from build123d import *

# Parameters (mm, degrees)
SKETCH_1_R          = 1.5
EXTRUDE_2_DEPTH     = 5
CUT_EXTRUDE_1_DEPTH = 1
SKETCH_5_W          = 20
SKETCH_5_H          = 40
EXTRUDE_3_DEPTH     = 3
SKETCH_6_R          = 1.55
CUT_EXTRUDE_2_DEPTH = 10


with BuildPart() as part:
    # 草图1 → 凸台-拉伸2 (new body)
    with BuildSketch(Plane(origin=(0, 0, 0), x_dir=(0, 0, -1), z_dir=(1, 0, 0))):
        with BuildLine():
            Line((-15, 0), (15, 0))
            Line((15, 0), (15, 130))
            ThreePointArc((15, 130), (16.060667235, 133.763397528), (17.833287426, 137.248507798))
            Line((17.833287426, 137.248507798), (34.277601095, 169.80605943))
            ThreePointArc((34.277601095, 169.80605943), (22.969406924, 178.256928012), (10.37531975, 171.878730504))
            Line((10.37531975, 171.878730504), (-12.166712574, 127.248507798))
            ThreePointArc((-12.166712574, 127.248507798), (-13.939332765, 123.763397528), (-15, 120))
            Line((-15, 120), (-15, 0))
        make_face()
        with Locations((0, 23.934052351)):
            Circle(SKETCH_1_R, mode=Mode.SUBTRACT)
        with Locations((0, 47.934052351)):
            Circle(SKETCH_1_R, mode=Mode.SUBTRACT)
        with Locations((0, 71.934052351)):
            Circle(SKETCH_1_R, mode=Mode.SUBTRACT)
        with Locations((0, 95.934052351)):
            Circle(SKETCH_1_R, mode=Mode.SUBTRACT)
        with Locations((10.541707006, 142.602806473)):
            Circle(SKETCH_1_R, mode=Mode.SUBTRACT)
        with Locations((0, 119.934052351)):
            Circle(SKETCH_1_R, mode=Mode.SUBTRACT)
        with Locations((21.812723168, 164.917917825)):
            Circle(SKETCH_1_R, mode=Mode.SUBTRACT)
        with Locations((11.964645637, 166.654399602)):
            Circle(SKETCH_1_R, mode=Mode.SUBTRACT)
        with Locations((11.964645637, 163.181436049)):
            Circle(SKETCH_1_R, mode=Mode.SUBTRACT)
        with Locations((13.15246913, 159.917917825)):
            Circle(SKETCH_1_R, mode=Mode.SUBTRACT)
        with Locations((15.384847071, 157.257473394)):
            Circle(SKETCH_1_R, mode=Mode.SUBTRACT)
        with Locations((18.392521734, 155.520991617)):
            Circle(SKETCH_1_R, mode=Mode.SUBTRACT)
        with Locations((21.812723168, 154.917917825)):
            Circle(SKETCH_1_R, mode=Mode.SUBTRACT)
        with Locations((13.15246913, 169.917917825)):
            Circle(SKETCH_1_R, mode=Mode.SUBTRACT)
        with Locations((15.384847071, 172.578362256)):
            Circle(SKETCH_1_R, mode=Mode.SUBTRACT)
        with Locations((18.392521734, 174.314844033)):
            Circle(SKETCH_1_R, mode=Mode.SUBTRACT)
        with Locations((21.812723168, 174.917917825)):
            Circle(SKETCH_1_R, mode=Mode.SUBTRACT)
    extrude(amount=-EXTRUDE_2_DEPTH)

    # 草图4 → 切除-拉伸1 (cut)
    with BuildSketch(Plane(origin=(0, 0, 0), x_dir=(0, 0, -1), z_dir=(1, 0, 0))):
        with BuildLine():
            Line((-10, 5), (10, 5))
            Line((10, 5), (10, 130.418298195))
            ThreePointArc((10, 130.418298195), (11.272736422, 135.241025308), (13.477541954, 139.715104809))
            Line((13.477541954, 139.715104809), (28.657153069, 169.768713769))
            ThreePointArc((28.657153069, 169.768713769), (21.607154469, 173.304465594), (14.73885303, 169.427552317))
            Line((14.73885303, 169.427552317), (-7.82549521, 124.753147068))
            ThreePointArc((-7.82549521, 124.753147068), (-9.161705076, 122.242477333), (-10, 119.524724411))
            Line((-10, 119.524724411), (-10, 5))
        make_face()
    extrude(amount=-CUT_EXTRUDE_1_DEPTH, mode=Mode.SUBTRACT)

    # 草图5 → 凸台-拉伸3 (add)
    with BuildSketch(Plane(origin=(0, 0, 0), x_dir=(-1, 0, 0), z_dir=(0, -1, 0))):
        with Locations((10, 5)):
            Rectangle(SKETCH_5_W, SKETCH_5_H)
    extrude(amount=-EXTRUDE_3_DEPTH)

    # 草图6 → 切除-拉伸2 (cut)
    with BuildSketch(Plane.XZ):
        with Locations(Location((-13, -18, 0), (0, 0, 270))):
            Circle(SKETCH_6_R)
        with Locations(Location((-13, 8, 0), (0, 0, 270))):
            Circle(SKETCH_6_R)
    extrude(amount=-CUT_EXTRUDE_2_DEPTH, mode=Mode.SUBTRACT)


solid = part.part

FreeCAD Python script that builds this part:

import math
import FreeCAD as App
import Part
import Sketcher
Q = App.Units.Quantity

doc = App.newDocument("Part")
body = doc.addObject("PartDesign::Body", "Body")

sketch1 = body.newObject("Sketcher::SketchObject", "Sketch")
sketch1.AttachmentSupport = (doc.getObject("YZ_Plane"), [""])
sketch1.MapMode = "FlatFace"
sketch1.addGeometry(Part.LineSegment(App.Vector(0, 15, 0), App.Vector(0, -15, 0)), False)
sketch1.addGeometry(Part.LineSegment(App.Vector(0, -15, 0), App.Vector(130, -15, 0)), False)
sketch1.addGeometry(Part.ArcOfCircle(Part.Circle(App.Vector(126.482287, -34.688212, 0), App.Vector(0, 0, 1), 20), math.radians(57.431261), math.radians(79.869798)), False)
sketch1.addGeometry(Part.LineSegment(App.Vector(137.248508, -17.833287, 0), App.Vector(169.806059, -34.277601, 0)), False)
sketch1.addGeometry(Part.ArcOfCircle(Part.Circle(App.Vector(164.917918, -21.812723, 0), App.Vector(0, 0, 1), 13.389067), math.radians(-68.587213), math.radians(58.675273)), False)
sketch1.addGeometry(Part.LineSegment(App.Vector(171.878731, -10.37532, 0), App.Vector(127.248508, 12.166713, 0)), False)
sketch1.addGeometry(Part.ArcOfCircle(Part.Circle(App.Vector(116.482287, -4.688212, 0), App.Vector(0, 0, 1), 20), math.radians(57.431261), math.radians(79.869798)), False)
sketch1.addGeometry(Part.LineSegment(App.Vector(120, 15, 0), App.Vector(0, 15, 0)), False)
sketch1.addGeometry(Part.Circle(App.Vector(23.934052, 0, 0), App.Vector(0, 0, 1), 1.5), False)
sketch1.addGeometry(Part.Circle(App.Vector(47.934052, 0, 0), App.Vector(0, 0, 1), 1.5), False)
sketch1.addGeometry(Part.Circle(App.Vector(71.934052, 0, 0), App.Vector(0, 0, 1), 1.5), False)
sketch1.addGeometry(Part.Circle(App.Vector(95.934052, 0, 0), App.Vector(0, 0, 1), 1.5), False)
sketch1.addGeometry(Part.Circle(App.Vector(119.934052, 0, 0), App.Vector(0, 0, 1), 1.5), False)
sketch1.addGeometry(Part.Circle(App.Vector(142.602806, -10.541707, 0), App.Vector(0, 0, 1), 1.5), False)
sketch1.addGeometry(Part.Circle(App.Vector(163.181436, -11.964646, 0), App.Vector(0, 0, 1), 1.5), False)
sketch1.addGeometry(Part.Circle(App.Vector(166.6544, -11.964646, 0), App.Vector(0, 0, 1), 1.5), False)
sketch1.addGeometry(Part.Circle(App.Vector(159.917918, -13.152469, 0), App.Vector(0, 0, 1), 1.5), False)
sketch1.addGeometry(Part.Circle(App.Vector(169.917918, -13.152469, 0), App.Vector(0, 0, 1), 1.5), False)
sketch1.addGeometry(Part.Circle(App.Vector(157.257473, -15.384847, 0), App.Vector(0, 0, 1), 1.5), False)
sketch1.addGeometry(Part.Circle(App.Vector(172.578362, -15.384847, 0), App.Vector(0, 0, 1), 1.5), False)
sketch1.addGeometry(Part.Circle(App.Vector(155.520992, -18.392522, 0), App.Vector(0, 0, 1), 1.5), False)
sketch1.addGeometry(Part.Circle(App.Vector(154.917918, -21.812723, 0), App.Vector(0, 0, 1), 1.5), False)
sketch1.addGeometry(Part.Circle(App.Vector(174.314844, -18.392522, 0), App.Vector(0, 0, 1), 1.5), False)
sketch1.addGeometry(Part.Circle(App.Vector(164.917918, -21.812723, 0), App.Vector(0, 0, 1), 1.5), False)
sketch1.addGeometry(Part.Circle(App.Vector(174.917918, -21.812723, 0), App.Vector(0, 0, 1), 1.5), False)
sketch1.addConstraint(Sketcher.Constraint("Coincident", 0, 2, 1, 1))
sketch1.addConstraint(Sketcher.Constraint("Coincident", 1, 2, 2, 2))
sketch1.addConstraint(Sketcher.Constraint("Coincident", 2, 1, 3, 1))
sketch1.addConstraint(Sketcher.Constraint("Coincident", 3, 2, 4, 1))
sketch1.addConstraint(Sketcher.Constraint("Coincident", 4, 2, 5, 1))
sketch1.addConstraint(Sketcher.Constraint("Coincident", 5, 2, 6, 1))
sketch1.addConstraint(Sketcher.Constraint("Coincident", 6, 2, 7, 1))
sketch1.addConstraint(Sketcher.Constraint("Coincident", 7, 2, 0, 1))
sketch1.addConstraint(Sketcher.Constraint("Vertical", 0))
sketch1.addConstraint(Sketcher.Constraint("Horizontal", 1))
sketch1.addConstraint(Sketcher.Constraint("Horizontal", 7))
sketch1.addConstraint(Sketcher.Constraint("Coincident", 23, 3, 4, 3))
sketch1.addConstraint(Sketcher.Constraint("Equal", 2, 6))
sketch1.addConstraint(Sketcher.Constraint("Equal", 8, 9))
sketch1.addConstraint(Sketcher.Constraint("Equal", 9, 10))
sketch1.addConstraint(Sketcher.Constraint("Equal", 10, 11))
sketch1.addConstraint(Sketcher.Constraint("Equal", 11, 12))
sketch1.addConstraint(Sketcher.Constraint("Equal", 12, 13))
sketch1.addConstraint(Sketcher.Constraint("Equal", 13, 14))
sketch1.addConstraint(Sketcher.Constraint("Equal", 14, 15))
sketch1.addConstraint(Sketcher.Constraint("Equal", 15, 16))
sketch1.addConstraint(Sketcher.Constraint("Equal", 16, 17))
sketch1.addConstraint(Sketcher.Constraint("Equal", 17, 18))
sketch1.addConstraint(Sketcher.Constraint("Equal", 18, 19))
sketch1.addConstraint(Sketcher.Constraint("Equal", 19, 20))
sketch1.addConstraint(Sketcher.Constraint("Equal", 20, 21))
sketch1.addConstraint(Sketcher.Constraint("Equal", 21, 22))
sketch1.addConstraint(Sketcher.Constraint("Equal", 22, 23))
sketch1.addConstraint(Sketcher.Constraint("Equal", 23, 24))
sketch1.addConstraint(Sketcher.Constraint("Symmetric", 0, 2, 7, 2, -1, 1))
sketch1.addConstraint(Sketcher.Constraint("PointOnObject", 8, 3, -1))
sketch1.addConstraint(Sketcher.Constraint("PointOnObject", 9, 3, -1))
sketch1.addConstraint(Sketcher.Constraint("PointOnObject", 10, 3, -1))
sketch1.addConstraint(Sketcher.Constraint("PointOnObject", 11, 3, -1))
sketch1.addConstraint(Sketcher.Constraint("PointOnObject", 12, 3, -1))
sketch1.addConstraint(Sketcher.Constraint("Parallel", 3, 5))
sketch1.addConstraint(Sketcher.Constraint("Horizontal", 14, 3, 15, 3))
sketch1.addConstraint(Sketcher.Constraint("Horizontal", 16, 3, 17, 3))
sketch1.addConstraint(Sketcher.Constraint("Horizontal", 18, 3, 19, 3))
sketch1.addConstraint(Sketcher.Constraint("Horizontal", 4, 3, 21, 3))
sketch1.addConstraint(Sketcher.Constraint("Horizontal", 20, 3, 22, 3))
sketch1.addConstraint(Sketcher.Constraint("Horizontal", 23, 3, 24, 3))
sketch1.addConstraint(Sketcher.Constraint("Diameter", 8, Q("3 mm")))
sketch1.addConstraint(Sketcher.Constraint("Radius", 2, Q("20 mm")))
sketch1.addConstraint(Sketcher.Constraint("DistanceX", 1, 1, 1, 2, Q("130 mm")))
sketch1.addConstraint(Sketcher.Constraint("DistanceX", 7, 2, 7, 1, Q("120 mm")))
sketch1.addConstraint(Sketcher.Constraint("DistanceY", 0, 2, 0, 1, Q("30 mm")))
sketch1.addConstraint(Sketcher.Constraint("Distance", 5, Q("50 mm")))
sketch1.addConstraint(Sketcher.Constraint("DistanceX", 6, 3, 2, 3, Q("10 mm")))
sketch1.addConstraint(Sketcher.Constraint("DistanceX", 8, 3, 9, 3, Q("24 mm")))
sketch1.addConstraint(Sketcher.Constraint("DistanceX", 9, 3, 10, 3, Q("24 mm")))
sketch1.addConstraint(Sketcher.Constraint("DistanceX", 10, 3, 11, 3, Q("24 mm")))
sketch1.addConstraint(Sketcher.Constraint("DistanceX", 11, 3, 12, 3, Q("24 mm")))
sketch1.addConstraint(Sketcher.Constraint("DistanceX", 16, 3, 4, 3, Q("5 mm")))
sketch1.addConstraint(Sketcher.Constraint("DistanceX", 16, 3, 17, 3, Q("10 mm")))
sketch1.addConstraint(Sketcher.Constraint("DistanceX", 21, 3, 4, 3, Q("10 mm")))
sketch1.addConstraint(Sketcher.Constraint("DistanceX", 23, 3, 24, 3, Q("10 mm")))
sketch1.addConstraint(Sketcher.Constraint("DistanceX", 5, 2, 2, 1, Q("10 mm")))
sketch1.addConstraint(Sketcher.Constraint("Radius", 4, Q("13.389067 mm")))
sketch1.addConstraint(Sketcher.Constraint("DistanceX", -1, 1, 15, 3, Q("166.6544 mm")))
sketch1.addConstraint(Sketcher.Constraint("DistanceY", 3, 2, -1, 1, Q("34.277601 mm")))
sketch1.addConstraint(Sketcher.Constraint("DistanceY", 18, 3, 14, 3, Q("3.420201 mm")))
sketch1.addConstraint(Sketcher.Constraint("DistanceY", 4, 3, 20, 3, Q("3.420201 mm")))
sketch1.addConstraint(Sketcher.Constraint("DistanceX", 2, 1, 13, 3, Q("5.354299 mm")))
sketch1.addConstraint(Sketcher.Constraint("DistanceY", 22, 3, 4, 2, Q("8.017202 mm")))
sketch1.addConstraint(Sketcher.Constraint("Distance", 3, Q("36.474781 mm")))
sketch1.addConstraint(Sketcher.Constraint("DistanceY", 16, 3, -1, 1, Q("13.152469 mm")))
sketch1.addConstraint(Sketcher.Constraint("DistanceX", -1, 1, 20, 3, Q("155.520992 mm")))
sketch1.addConstraint(Sketcher.Constraint("DistanceX", -1, 1, 3, 2, Q("169.806059 mm")))
sketch1.addConstraint(Sketcher.Constraint("DistanceX", 14, 3, 4, 3, Q("1.736482 mm")))
sketch1.addConstraint(Sketcher.Constraint("DistanceY", 14, 3, 13, 3, Q("1.422939 mm")))
sketch1.addConstraint(Sketcher.Constraint("DistanceX", 20, 3, 18, 3, Q("1.736482 mm")))
sketch1.addConstraint(Sketcher.Constraint("DistanceX", 19, 3, 22, 3, Q("1.736482 mm")))
sketch1.addConstraint(Sketcher.Constraint("DistanceY", 2, 1, 13, 3, Q("7.29158 mm")))
sketch1.addConstraint(Sketcher.Constraint("DistanceX", 4, 2, 19, 3, Q("0.699632 mm")))
sketch1.addConstraint(Sketcher.Constraint("DistanceX", -1, 1, 8, 3, Q("23.934052 mm")))
pad1 = body.newObject("PartDesign::Pad", "Pad")
pad1.Profile = sketch1
pad1.Length = 5
pad1.Reversed = True

sketch2 = body.newObject("Sketcher::SketchObject", "Sketch001")
sketch2.AttachmentSupport = (doc.getObject("YZ_Plane"), [""])
sketch2.MapMode = "FlatFace"
sketch2.addGeometry(Part.LineSegment(App.Vector(5, 10, 0), App.Vector(5, -10, 0)), False)
sketch2.addGeometry(Part.LineSegment(App.Vector(5, -10, 0), App.Vector(130.418298, -10, 0)), False)
sketch2.addGeometry(Part.ArcOfCircle(Part.Circle(App.Vector(126.482287, -34.688212, 0), App.Vector(0, 0, 1), 25), math.radians(58.04097), math.radians(80.941638)), False)
sketch2.addGeometry(Part.LineSegment(App.Vector(139.715105, -13.477542, 0), App.Vector(169.768714, -28.657153, 0)), False)
sketch2.addGeometry(Part.ArcOfCircle(Part.Circle(App.Vector(164.917918, -21.812723, 0), App.Vector(0, 0, 1), 8.389067), math.radians(-54.673972), math.radians(57.482246)), False)
sketch2.addGeometry(Part.LineSegment(App.Vector(169.427552, -14.738853, 0), App.Vector(124.753147, 7.825495, 0)), False)
sketch2.addGeometry(Part.ArcOfCircle(Part.Circle(App.Vector(116.482287, -4.688212, 0), App.Vector(0, 0, 1), 15), math.radians(56.537528), math.radians(78.297549)), False)
sketch2.addGeometry(Part.LineSegment(App.Vector(119.524724, 10, 0), App.Vector(5, 10, 0)), False)
sketch2.addConstraint(Sketcher.Constraint("Coincident", 0, 2, 1, 1))
sketch2.addConstraint(Sketcher.Constraint("Coincident", 1, 2, 2, 2))
sketch2.addConstraint(Sketcher.Constraint("Coincident", 2, 1, 3, 1))
sketch2.addConstraint(Sketcher.Constraint("Coincident", 3, 2, 4, 1))
sketch2.addConstraint(Sketcher.Constraint("Coincident", 4, 2, 5, 1))
sketch2.addConstraint(Sketcher.Constraint("Coincident", 5, 2, 6, 1))
sketch2.addConstraint(Sketcher.Constraint("Coincident", 6, 2, 7, 1))
sketch2.addConstraint(Sketcher.Constraint("Coincident", 7, 2, 0, 1))
sketch2.addConstraint(Sketcher.Constraint("Vertical", 0))
sketch2.addConstraint(Sketcher.Constraint("Horizontal", 1))
sketch2.addConstraint(Sketcher.Constraint("Horizontal", 7))
sketch2.addConstraint(Sketcher.Constraint("Parallel", 3, 5))
sketch2.addConstraint(Sketcher.Constraint("Radius", 2, Q("25 mm")))
sketch2.addConstraint(Sketcher.Constraint("Radius", 6, Q("15 mm")))
sketch2.addConstraint(Sketcher.Constraint("DistanceY", 0, 2, 0, 1, Q("20 mm")))
sketch2.addConstraint(Sketcher.Constraint("DistanceX", -1, 1, 0, 2, Q("5 mm")))
sketch2.addConstraint(Sketcher.Constraint("DistanceY", 0, 2, -1, 1, Q("10 mm")))
sketch2.addConstraint(Sketcher.Constraint("DistanceX", 6, 3, 2, 3, Q("10 mm")))
sketch2.addConstraint(Sketcher.Constraint("DistanceY", 2, 3, 6, 3, Q("30 mm")))
sketch2.addConstraint(Sketcher.Constraint("DistanceX", 1, 1, 1, 2, Q("125.418298 mm")))
sketch2.addConstraint(Sketcher.Constraint("Radius", 4, Q("8.389067 mm")))
sketch2.addConstraint(Sketcher.Constraint("Distance", 5, Q("50.049498 mm")))
sketch2.addConstraint(Sketcher.Constraint("DistanceY", 3, 2, 4, 2, Q("13.9183 mm")))
sketch2.addConstraint(Sketcher.Constraint("Distance", 3, Q("33.669571 mm")))
sketch2.addConstraint(Sketcher.Constraint("DistanceX", 7, 2, 7, 1, Q("114.524724 mm")))
sketch2.addConstraint(Sketcher.Constraint("DistanceY", 2, 1, -1, 1, Q("13.477542 mm")))
sketch2.addConstraint(Sketcher.Constraint("DistanceX", 2, 3, 4, 3, Q("38.435631 mm")))
pocket1 = body.newObject("PartDesign::Pocket", "Pocket")
pocket1.Profile = sketch2
pocket1.Length = 1

sketch3 = body.newObject("Sketcher::SketchObject", "Sketch002")
sketch3.AttachmentSupport = (doc.getObject("XZ_Plane"), [""])
sketch3.MapMode = "FlatFace"
sketch3.addGeometry(Part.LineSegment(App.Vector(0, -25, 0), App.Vector(0, 15, 0)), False)
sketch3.addGeometry(Part.LineSegment(App.Vector(0, 15, 0), App.Vector(-20, 15, 0)), False)
sketch3.addGeometry(Part.LineSegment(App.Vector(-20, 15, 0), App.Vector(-20, -25, 0)), False)
sketch3.addGeometry(Part.LineSegment(App.Vector(-20, -25, 0), App.Vector(0, -25, 0)), False)
sketch3.addConstraint(Sketcher.Constraint("Coincident", 0, 2, 1, 1))
sketch3.addConstraint(Sketcher.Constraint("Coincident", 1, 2, 2, 1))
sketch3.addConstraint(Sketcher.Constraint("Coincident", 2, 2, 3, 1))
sketch3.addConstraint(Sketcher.Constraint("Coincident", 3, 2, 0, 1))
sketch3.addConstraint(Sketcher.Constraint("Vertical", 0))
sketch3.addConstraint(Sketcher.Constraint("Horizontal", 1))
sketch3.addConstraint(Sketcher.Constraint("Vertical", 2))
sketch3.addConstraint(Sketcher.Constraint("Horizontal", 3))
sketch3.addConstraint(Sketcher.Constraint("PointOnObject", 0, 2, -2))
sketch3.addConstraint(Sketcher.Constraint("DistanceX", 1, 2, 1, 1, Q("20 mm")))
sketch3.addConstraint(Sketcher.Constraint("DistanceY", 0, 1, 0, 2, Q("40 mm")))
sketch3.addConstraint(Sketcher.Constraint("DistanceY", -1, 1, 0, 2, Q("15 mm")))
pad2 = body.newObject("PartDesign::Pad", "Pad001")
pad2.Profile = sketch3
pad2.Length = 3
pad2.Reversed = True

sketch4 = body.newObject("Sketcher::SketchObject", "Sketch003")
sketch4.AttachmentSupport = (doc.getObject("XZ_Plane"), [""])
sketch4.MapMode = "FlatFace"
sketch4.addGeometry(Part.Circle(App.Vector(-13, -18, 0), App.Vector(0, 0, 1), 1.55), False)
sketch4.addGeometry(Part.Circle(App.Vector(-13, 8, 0), App.Vector(0, 0, 1), 1.55), False)
sketch4.addConstraint(Sketcher.Constraint("Equal", 0, 1))
sketch4.addConstraint(Sketcher.Constraint("Vertical", 0, 3, 1, 3))
sketch4.addConstraint(Sketcher.Constraint("Diameter", 0, Q("3.1 mm")))
sketch4.addConstraint(Sketcher.Constraint("DistanceX", 0, 3, -1, 1, Q("13 mm")))
sketch4.addConstraint(Sketcher.Constraint("DistanceY", 0, 3, -1, 1, Q("18 mm")))
sketch4.addConstraint(Sketcher.Constraint("DistanceY", -1, 1, 1, 3, Q("8 mm")))
pocket2 = body.newObject("PartDesign::Pocket", "Pocket001")
pocket2.Profile = sketch4
pocket2.Length = 10

doc.recompute()
